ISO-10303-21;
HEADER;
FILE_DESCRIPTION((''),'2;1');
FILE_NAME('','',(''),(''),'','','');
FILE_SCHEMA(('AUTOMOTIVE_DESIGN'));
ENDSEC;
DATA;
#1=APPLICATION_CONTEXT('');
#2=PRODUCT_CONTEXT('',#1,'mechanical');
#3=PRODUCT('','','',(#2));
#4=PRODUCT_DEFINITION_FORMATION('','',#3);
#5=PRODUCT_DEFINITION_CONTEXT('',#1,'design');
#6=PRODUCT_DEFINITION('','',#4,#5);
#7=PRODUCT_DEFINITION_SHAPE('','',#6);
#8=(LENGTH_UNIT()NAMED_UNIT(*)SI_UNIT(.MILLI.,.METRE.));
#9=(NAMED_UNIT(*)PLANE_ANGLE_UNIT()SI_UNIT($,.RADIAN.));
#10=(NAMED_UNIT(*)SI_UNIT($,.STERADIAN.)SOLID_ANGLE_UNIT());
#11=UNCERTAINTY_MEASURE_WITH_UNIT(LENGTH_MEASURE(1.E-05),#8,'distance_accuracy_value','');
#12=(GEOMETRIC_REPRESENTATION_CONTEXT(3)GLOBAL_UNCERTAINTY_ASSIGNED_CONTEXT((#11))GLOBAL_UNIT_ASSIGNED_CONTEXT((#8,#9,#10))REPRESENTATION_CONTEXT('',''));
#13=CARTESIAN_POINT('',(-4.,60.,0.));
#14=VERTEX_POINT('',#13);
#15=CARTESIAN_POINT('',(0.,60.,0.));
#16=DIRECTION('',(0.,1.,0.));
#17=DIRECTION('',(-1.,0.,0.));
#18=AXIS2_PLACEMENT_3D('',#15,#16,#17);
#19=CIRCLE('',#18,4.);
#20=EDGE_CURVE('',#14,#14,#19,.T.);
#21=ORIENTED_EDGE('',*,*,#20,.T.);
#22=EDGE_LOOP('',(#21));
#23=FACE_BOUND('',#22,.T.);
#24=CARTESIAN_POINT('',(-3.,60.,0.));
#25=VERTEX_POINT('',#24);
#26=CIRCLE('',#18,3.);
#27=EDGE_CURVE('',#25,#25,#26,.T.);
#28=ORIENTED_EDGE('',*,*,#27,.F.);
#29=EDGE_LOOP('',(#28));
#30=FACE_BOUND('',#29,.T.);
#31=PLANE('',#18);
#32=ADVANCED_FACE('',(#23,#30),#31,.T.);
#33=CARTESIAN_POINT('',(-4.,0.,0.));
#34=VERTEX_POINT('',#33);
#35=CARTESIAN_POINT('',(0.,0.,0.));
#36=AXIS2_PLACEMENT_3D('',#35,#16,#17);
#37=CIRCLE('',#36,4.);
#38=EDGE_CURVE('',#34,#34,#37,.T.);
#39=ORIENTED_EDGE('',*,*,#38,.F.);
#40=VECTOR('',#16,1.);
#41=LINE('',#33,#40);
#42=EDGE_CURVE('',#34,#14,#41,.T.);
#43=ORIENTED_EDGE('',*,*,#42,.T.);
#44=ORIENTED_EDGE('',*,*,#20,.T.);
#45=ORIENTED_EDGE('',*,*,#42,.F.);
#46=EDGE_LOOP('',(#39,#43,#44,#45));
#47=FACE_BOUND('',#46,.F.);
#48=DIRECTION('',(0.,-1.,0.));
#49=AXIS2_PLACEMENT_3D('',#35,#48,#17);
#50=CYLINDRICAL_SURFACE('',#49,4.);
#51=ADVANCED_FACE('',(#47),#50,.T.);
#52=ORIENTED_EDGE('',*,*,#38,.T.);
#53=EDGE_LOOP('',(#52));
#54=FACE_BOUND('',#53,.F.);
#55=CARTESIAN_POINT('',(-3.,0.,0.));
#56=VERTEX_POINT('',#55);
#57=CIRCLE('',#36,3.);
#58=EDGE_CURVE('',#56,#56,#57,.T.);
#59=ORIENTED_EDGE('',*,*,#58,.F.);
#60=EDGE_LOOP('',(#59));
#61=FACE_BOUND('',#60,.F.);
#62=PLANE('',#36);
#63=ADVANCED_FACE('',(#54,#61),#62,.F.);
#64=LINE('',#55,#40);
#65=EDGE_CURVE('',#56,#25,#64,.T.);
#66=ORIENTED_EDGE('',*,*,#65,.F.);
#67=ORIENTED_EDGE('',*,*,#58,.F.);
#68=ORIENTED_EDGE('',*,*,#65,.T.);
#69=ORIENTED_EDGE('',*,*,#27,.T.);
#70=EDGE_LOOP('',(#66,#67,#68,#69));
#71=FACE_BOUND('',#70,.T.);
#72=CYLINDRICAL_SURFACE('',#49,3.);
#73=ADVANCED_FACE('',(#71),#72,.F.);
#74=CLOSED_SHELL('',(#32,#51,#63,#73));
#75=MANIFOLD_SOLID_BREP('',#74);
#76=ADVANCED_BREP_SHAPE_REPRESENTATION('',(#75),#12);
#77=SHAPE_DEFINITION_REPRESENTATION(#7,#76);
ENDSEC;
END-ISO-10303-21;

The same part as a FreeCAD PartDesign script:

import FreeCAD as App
import Part
import Sketcher

V = App.Vector

doc = App.newDocument("Part")
body = doc.addObject("PartDesign::Body", "Body")

# Sketch on XZ plane
sketch1 = doc.addObject("Sketcher::SketchObject", "Sketch")
body.addObject(sketch1)
sketch1.AttachmentSupport = (doc.XZ_Plane, [""])
sketch1.MapMode = "FlatFace"
sketch1.addGeometry([
    Part.Circle(V(0, 0, 0), V(0, 0, 1), 4),
    Part.Circle(V(0, 0, 0), V(0, 0, 1), 3),
], False)
sketch1.addConstraint([
    Sketcher.Constraint("Coincident", 0, 3, -1, 1),
    Sketcher.Constraint("Coincident", 1, 3, -1, 1),
    Sketcher.Constraint("Diameter", 0, 8.0),
    Sketcher.Constraint("Diameter", 1, 6.0),
])
pad1 = doc.addObject("PartDesign::Pad", "Pad")
body.addObject(pad1)
pad1.Profile = sketch1
pad1.Length = 60
pad1.Reversed = True

doc.recompute()
